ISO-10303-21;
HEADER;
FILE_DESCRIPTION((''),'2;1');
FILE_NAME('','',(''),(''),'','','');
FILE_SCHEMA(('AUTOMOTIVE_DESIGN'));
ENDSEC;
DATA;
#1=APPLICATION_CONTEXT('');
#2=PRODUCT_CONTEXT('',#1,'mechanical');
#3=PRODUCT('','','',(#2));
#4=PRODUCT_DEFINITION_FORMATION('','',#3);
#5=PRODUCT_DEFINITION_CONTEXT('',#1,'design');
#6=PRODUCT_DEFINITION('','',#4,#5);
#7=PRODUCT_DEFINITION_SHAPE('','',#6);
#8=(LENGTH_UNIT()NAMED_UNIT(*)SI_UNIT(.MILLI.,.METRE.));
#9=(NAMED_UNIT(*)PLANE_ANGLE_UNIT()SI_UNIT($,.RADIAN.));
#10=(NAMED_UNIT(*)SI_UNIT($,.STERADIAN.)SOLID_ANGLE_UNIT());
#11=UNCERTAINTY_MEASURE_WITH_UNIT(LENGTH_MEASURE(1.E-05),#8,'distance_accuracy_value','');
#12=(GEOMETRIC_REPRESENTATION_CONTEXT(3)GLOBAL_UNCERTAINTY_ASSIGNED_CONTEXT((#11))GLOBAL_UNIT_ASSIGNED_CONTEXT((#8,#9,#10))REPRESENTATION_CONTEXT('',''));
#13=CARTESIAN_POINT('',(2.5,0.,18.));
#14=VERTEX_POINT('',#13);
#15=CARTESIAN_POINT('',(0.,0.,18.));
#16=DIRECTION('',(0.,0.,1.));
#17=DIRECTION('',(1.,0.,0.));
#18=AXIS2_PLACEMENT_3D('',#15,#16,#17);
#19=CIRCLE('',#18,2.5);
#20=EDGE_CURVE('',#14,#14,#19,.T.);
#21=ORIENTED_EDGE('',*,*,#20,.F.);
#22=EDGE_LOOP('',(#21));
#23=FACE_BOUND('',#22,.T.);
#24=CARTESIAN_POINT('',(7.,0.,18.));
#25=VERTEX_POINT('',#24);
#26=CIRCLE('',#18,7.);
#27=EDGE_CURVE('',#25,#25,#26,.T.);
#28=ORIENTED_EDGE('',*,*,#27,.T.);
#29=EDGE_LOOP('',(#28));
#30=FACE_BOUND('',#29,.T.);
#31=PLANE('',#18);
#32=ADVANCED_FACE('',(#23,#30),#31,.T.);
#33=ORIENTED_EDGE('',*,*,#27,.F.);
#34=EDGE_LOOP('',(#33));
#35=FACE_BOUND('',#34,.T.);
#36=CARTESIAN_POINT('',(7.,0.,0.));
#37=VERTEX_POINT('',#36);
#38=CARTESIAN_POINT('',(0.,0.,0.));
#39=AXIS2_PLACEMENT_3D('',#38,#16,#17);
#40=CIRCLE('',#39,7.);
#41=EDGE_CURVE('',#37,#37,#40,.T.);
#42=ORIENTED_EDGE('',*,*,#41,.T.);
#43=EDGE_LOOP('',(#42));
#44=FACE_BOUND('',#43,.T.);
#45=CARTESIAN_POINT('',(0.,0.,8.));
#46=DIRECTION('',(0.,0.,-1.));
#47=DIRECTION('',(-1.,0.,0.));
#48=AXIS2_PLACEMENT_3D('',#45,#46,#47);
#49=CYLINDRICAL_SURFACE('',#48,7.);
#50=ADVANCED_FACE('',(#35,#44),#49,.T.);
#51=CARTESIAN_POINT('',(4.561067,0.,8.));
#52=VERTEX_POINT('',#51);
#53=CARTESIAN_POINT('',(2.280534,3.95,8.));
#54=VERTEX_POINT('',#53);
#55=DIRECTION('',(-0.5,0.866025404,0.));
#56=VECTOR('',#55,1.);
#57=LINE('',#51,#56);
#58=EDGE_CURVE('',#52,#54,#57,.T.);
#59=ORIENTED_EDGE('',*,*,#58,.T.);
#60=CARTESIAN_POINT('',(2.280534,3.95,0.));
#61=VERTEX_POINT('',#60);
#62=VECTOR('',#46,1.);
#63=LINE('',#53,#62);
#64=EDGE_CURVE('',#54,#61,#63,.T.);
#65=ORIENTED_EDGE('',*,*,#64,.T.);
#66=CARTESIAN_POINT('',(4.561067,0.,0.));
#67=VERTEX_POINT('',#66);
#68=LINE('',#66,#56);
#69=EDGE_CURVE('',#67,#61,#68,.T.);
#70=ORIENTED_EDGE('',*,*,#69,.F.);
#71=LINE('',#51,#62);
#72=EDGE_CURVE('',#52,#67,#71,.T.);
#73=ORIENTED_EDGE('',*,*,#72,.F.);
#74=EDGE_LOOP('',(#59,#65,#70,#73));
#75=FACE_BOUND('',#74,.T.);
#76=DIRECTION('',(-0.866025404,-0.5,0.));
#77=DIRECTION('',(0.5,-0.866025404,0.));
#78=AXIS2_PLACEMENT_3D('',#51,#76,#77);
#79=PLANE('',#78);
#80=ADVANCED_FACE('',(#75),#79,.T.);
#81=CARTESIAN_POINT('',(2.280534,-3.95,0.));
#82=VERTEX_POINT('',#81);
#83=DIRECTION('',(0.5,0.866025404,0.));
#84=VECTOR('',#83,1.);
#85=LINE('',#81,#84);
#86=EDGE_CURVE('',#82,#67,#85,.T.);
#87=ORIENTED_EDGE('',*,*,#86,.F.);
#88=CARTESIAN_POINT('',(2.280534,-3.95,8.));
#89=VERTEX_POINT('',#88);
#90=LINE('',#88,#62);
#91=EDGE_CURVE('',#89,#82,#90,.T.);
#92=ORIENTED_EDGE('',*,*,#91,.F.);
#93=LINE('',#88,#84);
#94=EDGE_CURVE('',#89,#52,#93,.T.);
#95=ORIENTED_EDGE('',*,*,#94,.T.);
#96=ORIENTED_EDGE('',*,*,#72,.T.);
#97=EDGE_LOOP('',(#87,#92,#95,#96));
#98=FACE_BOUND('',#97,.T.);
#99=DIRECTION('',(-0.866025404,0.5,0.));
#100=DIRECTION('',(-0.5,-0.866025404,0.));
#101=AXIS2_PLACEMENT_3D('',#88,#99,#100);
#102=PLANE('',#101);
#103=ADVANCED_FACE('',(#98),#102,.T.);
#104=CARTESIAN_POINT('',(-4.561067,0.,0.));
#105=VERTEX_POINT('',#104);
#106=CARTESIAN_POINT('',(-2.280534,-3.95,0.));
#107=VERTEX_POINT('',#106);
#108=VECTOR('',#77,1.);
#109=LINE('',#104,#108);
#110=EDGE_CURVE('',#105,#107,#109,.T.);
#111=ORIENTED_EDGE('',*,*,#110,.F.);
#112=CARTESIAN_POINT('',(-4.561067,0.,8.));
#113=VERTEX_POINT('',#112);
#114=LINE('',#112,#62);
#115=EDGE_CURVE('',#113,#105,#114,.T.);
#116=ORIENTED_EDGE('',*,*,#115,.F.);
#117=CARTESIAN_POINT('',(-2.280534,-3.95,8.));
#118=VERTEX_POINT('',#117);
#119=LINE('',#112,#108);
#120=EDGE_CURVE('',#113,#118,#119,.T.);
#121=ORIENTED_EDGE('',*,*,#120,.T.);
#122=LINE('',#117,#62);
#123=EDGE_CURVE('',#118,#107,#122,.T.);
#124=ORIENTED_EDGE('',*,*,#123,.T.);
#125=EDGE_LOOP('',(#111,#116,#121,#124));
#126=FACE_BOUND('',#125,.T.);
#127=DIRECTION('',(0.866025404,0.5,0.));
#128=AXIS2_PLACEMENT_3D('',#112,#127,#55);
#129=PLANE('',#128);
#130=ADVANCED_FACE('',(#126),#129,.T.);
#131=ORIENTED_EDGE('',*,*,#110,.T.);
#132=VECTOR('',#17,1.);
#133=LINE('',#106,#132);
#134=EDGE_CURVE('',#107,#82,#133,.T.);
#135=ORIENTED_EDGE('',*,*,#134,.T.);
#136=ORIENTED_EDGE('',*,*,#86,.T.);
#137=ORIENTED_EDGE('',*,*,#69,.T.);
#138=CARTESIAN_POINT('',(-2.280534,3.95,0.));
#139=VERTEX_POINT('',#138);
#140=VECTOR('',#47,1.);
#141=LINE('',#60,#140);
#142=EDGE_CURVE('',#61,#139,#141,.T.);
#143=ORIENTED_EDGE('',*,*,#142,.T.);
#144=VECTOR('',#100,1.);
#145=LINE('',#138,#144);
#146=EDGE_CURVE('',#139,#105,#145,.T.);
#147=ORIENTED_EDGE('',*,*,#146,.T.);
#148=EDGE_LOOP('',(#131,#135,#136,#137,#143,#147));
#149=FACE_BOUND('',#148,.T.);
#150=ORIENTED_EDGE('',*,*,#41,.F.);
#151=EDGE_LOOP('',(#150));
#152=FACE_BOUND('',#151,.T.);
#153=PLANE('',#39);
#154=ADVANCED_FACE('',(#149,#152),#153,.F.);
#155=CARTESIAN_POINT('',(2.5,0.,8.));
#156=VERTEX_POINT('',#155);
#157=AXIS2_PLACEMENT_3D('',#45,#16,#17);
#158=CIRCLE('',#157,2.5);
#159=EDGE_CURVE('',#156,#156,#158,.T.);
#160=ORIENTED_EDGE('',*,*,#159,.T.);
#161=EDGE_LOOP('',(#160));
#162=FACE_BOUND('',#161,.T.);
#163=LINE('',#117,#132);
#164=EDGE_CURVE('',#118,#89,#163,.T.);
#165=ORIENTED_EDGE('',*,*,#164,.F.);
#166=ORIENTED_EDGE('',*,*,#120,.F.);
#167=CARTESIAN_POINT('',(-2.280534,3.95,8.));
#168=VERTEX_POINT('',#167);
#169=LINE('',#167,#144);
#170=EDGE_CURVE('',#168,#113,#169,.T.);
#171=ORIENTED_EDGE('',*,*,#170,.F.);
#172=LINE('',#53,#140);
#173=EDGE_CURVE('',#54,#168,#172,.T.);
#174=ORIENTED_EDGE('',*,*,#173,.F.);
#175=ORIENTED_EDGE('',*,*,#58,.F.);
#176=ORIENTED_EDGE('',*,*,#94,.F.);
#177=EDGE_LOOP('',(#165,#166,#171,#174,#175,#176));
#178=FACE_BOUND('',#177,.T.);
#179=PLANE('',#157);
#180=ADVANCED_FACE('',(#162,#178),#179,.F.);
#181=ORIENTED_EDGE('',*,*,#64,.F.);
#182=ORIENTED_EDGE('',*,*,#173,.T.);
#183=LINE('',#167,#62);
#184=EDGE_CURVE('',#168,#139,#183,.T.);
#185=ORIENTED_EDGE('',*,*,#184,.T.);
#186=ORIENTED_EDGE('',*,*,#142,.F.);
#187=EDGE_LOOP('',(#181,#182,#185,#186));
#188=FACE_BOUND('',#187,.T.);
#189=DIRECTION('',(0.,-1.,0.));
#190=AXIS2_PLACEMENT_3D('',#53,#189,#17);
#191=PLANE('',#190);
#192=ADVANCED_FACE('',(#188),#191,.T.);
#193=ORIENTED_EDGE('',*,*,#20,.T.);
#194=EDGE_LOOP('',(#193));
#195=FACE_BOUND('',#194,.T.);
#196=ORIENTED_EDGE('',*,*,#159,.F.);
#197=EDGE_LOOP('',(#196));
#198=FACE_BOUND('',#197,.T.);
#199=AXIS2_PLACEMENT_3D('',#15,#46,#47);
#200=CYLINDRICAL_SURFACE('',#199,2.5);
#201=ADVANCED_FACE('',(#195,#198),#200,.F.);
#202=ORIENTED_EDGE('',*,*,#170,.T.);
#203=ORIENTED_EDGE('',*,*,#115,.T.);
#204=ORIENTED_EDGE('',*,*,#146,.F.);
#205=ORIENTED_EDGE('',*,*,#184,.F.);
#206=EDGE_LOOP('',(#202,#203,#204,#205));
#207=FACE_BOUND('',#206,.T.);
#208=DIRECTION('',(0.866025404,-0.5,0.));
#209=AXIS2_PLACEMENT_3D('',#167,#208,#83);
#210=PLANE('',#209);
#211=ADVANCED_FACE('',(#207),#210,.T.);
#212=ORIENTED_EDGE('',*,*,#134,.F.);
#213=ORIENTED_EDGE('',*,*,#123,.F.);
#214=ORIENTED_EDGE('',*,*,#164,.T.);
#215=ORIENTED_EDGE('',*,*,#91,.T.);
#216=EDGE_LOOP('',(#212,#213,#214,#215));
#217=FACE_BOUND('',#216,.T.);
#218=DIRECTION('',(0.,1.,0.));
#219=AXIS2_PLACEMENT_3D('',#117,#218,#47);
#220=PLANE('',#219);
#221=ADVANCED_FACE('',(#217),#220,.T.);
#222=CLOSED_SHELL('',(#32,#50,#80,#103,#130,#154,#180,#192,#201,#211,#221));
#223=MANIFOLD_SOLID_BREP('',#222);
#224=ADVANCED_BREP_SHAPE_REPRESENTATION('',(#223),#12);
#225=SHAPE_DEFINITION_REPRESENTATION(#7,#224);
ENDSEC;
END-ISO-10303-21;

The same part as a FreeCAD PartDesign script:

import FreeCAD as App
import Part
import Sketcher

V = App.Vector
Q = App.Units.Quantity


def add_polygon(sketch, points):
    """Adds a closed chain of lines whose ends are joined by coincident constraints."""
    first, n = sketch.GeometryCount, len(points)
    for a, b in zip(points, points[1:] + points[:1]):
        sketch.addGeometry(Part.LineSegment(App.Vector(*a, 0), App.Vector(*b, 0)), False)
    for i in range(n):
        sketch.addConstraint(Sketcher.Constraint("Coincident", first + i, 2, first + (i + 1) % n, 1))

doc = App.newDocument("Part")
params = doc.addObject("Spreadsheet::Sheet", "Params")
for row, (alias, value) in enumerate([
    ("sketch1_diameter", "14 mm"),
    ("pad1_length", "8 mm"),
    ("sketch2_diameter", "14 mm"),
    ("sketch2_diameter2", "5 mm"),
    ("pad2_length", "10 mm"),
], start=1):
    params.set(f"A{row}", alias)
    params.set(f"B{row}", "=" + value)
    params.setAlias(f"B{row}", alias)

body = doc.addObject("PartDesign::Body", "Body")

sketch1 = body.newObject("Sketcher::SketchObject", "Sketch")
sketch1.AttachmentSupport = (doc.getObject("XY_Plane"), [""])
sketch1.MapMode = "FlatFace"
sketch1.addGeometry(Part.Circle(V(0, 0, 0), V(0, 0, 1), 7), False)
add_polygon(sketch1, [(4.561067, 0), (2.280534, -3.95), (-2.280534, -3.95), (-4.561067, 0), (-2.280534, 3.95), (2.280534, 3.95)])
sketch1.addConstraint(Sketcher.Constraint("Horizontal", 2))
sketch1.addConstraint(Sketcher.Constraint("Horizontal", 5))
sketch1.addConstraint(Sketcher.Constraint("Coincident", 0, 3, -1, 1))
sketch1.addConstraint(Sketcher.Constraint("Symmetric", 1, 2, 4, 2, -1, 1))
sketch1.addConstraint(Sketcher.Constraint("Symmetric", 3, 2, 6, 2, -1, 1))
sketch1.addConstraint(Sketcher.Constraint("PointOnObject", 3, 2, -1))
sketch1.addConstraint(Sketcher.Constraint("Parallel", 3, 6))
sketch1.addConstraint(Sketcher.Constraint("Vertical", 2, 2, 4, 2))
sketch1.addConstraint(Sketcher.Constraint("Diameter", 0, 14.0))
sketch1.addConstraint(Sketcher.Constraint("Angle", 1, Q("-120 deg")))
sketch1.addConstraint(Sketcher.Constraint("DistanceY", 2, 2, 4, 2, 7.9))
sketch1.addConstraint(Sketcher.Constraint("DistanceX", 3, 2, 1, 2, 6.841601))
sketch1.setExpression("Constraints[14]", "Params.sketch1_diameter")
pad1 = body.newObject("PartDesign::Pad", "Pad")
pad1.Profile = sketch1
pad1.setExpression("Length", "Params.pad1_length")

sketch2 = body.newObject("Sketcher::SketchObject", "Sketch001")
sketch2.AttachmentSupport = (doc.getObject("XY_Plane"), [""])
sketch2.MapMode = "FlatFace"
sketch2.AttachmentOffset = App.Placement(V(0, 0, 8), App.Rotation())
sketch2.addGeometry(Part.Circle(V(0, 0, 0), V(0, 0, 1), 7), False)
sketch2.addGeometry(Part.Circle(V(0, 0, 0), V(0, 0, 1), 2.5), False)
sketch2.addConstraint(Sketcher.Constraint("Coincident", 0, 3, -1, 1))
sketch2.addConstraint(Sketcher.Constraint("Coincident", 1, 3, -1, 1))
sketch2.addConstraint(Sketcher.Constraint("Diameter", 0, 14.0))
sketch2.addConstraint(Sketcher.Constraint("Diameter", 1, 5.0))
sketch2.setExpression("Constraints[2]", "Params.sketch2_diameter")
sketch2.setExpression("Constraints[3]", "Params.sketch2_diameter2")
pad2 = body.newObject("PartDesign::Pad", "Pad001")
pad2.Profile = sketch2
pad2.setExpression("Length", "Params.pad2_length")

doc.recompute()
